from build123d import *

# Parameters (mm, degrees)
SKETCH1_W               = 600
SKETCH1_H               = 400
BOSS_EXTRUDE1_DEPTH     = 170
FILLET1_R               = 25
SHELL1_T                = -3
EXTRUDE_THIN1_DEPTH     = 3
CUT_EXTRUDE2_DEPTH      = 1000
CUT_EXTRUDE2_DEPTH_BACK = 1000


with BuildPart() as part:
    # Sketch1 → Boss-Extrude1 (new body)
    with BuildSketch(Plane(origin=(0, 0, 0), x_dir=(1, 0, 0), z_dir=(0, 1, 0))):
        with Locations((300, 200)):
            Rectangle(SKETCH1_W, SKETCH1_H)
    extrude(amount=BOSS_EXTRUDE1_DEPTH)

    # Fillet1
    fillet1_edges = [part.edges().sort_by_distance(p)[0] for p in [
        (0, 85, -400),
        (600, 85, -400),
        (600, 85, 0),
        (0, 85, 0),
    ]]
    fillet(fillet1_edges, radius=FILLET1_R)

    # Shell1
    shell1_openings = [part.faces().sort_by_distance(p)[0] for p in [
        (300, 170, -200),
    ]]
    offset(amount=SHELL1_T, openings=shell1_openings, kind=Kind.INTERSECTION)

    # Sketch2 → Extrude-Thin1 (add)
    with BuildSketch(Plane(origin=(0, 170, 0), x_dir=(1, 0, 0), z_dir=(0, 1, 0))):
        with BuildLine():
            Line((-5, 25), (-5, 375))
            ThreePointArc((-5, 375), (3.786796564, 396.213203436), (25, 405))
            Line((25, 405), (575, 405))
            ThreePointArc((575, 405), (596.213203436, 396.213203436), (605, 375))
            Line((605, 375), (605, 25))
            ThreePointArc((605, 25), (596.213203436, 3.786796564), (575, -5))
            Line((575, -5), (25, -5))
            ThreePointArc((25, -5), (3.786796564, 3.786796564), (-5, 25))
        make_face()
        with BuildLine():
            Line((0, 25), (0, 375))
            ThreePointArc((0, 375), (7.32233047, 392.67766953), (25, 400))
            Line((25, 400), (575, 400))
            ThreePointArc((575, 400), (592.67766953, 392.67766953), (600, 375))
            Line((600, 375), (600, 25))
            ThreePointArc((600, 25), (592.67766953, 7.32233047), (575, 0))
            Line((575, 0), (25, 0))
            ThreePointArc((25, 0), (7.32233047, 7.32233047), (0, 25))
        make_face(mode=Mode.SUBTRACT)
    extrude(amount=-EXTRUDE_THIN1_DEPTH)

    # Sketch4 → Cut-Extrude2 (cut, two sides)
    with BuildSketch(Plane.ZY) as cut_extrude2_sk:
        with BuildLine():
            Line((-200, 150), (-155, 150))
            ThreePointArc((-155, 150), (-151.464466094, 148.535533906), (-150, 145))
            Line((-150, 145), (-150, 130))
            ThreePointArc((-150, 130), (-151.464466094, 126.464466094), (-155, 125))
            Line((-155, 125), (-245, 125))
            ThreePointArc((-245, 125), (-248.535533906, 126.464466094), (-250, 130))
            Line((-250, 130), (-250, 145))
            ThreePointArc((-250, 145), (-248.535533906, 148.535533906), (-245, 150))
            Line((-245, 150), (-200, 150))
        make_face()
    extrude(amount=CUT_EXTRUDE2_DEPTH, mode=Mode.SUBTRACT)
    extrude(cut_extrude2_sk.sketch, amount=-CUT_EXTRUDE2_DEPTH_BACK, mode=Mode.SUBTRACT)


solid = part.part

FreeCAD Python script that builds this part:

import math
import FreeCAD as App
import Part
import Sketcher

V = App.Vector
Q = App.Units.Quantity


def edges_at(feature, points):
    """Names of the edges that pass closest to the given points."""
    edges = feature.Shape.Edges
    near = lambda p: min(range(len(edges)), key=lambda i: edges[i].distToShape(Part.Vertex(*p))[0])
    return sorted({f"Edge{near(p) + 1}" for p in points})


def faces_at(feature, points):
    """Names of the faces that lie closest to the given points."""
    faces = feature.Shape.Faces
    near = lambda p: min(range(len(faces)), key=lambda i: faces[i].distToShape(Part.Vertex(*p))[0])
    return sorted({f"Face{near(p) + 1}" for p in points})

doc = App.newDocument("Part")
params = doc.addObject("Spreadsheet::Sheet", "Params")
for row, (alias, value) in enumerate([
    ("sketch1_width", "600 mm"),
    ("sketch1_height", "400 mm"),
    ("pad1_length", "170 mm"),
    ("fillet_radius", "25 mm"),
    ("thickness_wall", "3 mm"),
    ("sketch2_radius", "30 mm"),
    ("sketch2_radius2", "25 mm"),
    ("sketch2_width", "550 mm"),
    ("sketch2_height", "350 mm"),
    ("pad2_length", "3 mm"),
    ("sketch3_radius", "5 mm"),
    ("sketch3_width", "15 mm"),
    ("sketch3_height", "90 mm"),
], start=1):
    params.set(f"A{row}", alias)
    params.set(f"B{row}", "=" + value)
    params.setAlias(f"B{row}", alias)

body = doc.addObject("PartDesign::Body", "Body")

sketch1 = body.newObject("Sketcher::SketchObject", "Sketch")
sketch1.AttachmentSupport = (doc.getObject("XZ_Plane"), [""])
sketch1.MapMode = "FlatFace"
sketch1.addGeometry([
    Part.LineSegment(V(0, -400, 0), V(0, 0, 0)),
    Part.LineSegment(V(0, 0, 0), V(600, 0, 0)),
    Part.LineSegment(V(600, 0, 0), V(600, -400, 0)),
    Part.LineSegment(V(600, -400, 0), V(0, -400, 0)),
], False)
sketch1.addConstraint([
    Sketcher.Constraint("Coincident", 0, 2, 1, 1),
    Sketcher.Constraint("Coincident", 1, 2, 2, 1),
    Sketcher.Constraint("Coincident", 2, 2, 3, 1),
    Sketcher.Constraint("Coincident", 3, 2, 0, 1),
    Sketcher.Constraint("Vertical", 0),
    Sketcher.Constraint("Horizontal", 1),
    Sketcher.Constraint("Vertical", 2),
    Sketcher.Constraint("Horizontal", 3),
    Sketcher.Constraint("Coincident", 0, 2, -1, 1),
    Sketcher.Constraint("DistanceX", 1, 1, 1, 2, Q("600 mm")),
    Sketcher.Constraint("DistanceY", 0, 1, 0, 2, Q("400 mm")),
])
sketch1.setExpression("Constraints[9]", "Params.sketch1_width")
sketch1.setExpression("Constraints[10]", "Params.sketch1_height")
pad1 = body.newObject("PartDesign::Pad", "Pad")
pad1.Profile = sketch1
pad1.setExpression("Length", "Params.pad1_length")
pad1.Reversed = True
doc.recompute()

fillet = body.newObject("PartDesign::Fillet", "Fillet")
fillet.Base = (pad1, edges_at(pad1, [
    (0, 85, -400),
    (600, 85, -400),
    (600, 85, 0),
    (0, 85, 0),
]))
fillet.setExpression("Radius", "Params.fillet_radius")
doc.recompute()

thickness = body.newObject("PartDesign::Thickness", "Thickness")
thickness.Base = (fillet, faces_at(fillet, [(300, 170, -200)]))
thickness.setExpression("Value", "Params.thickness_wall")
thickness.Reversed = True
thickness.Join = "Intersection"

sketch2 = body.newObject("Sketcher::SketchObject", "Sketch001")
sketch2.AttachmentSupport = (doc.getObject("XZ_Plane"), [""])
sketch2.MapMode = "FlatFace"
sketch2.AttachmentOffset = App.Placement(V(0, 0, -170), App.Rotation())
sketch2.addGeometry([
    Part.LineSegment(V(-5, -375, 0), V(-5, -25, 0)),
    Part.ArcOfCircle(Part.Circle(V(25, -25, 0), V(0, 0, 1), 30), math.radians(90), math.radians(180)),
    Part.LineSegment(V(25, 5, 0), V(575, 5, 0)),
    Part.ArcOfCircle(Part.Circle(V(575, -25, 0), V(0, 0, 1), 30), math.radians(0), math.radians(90)),
    Part.LineSegment(V(605, -25, 0), V(605, -375, 0)),
    Part.ArcOfCircle(Part.Circle(V(575, -375, 0), V(0, 0, 1), 30), math.radians(-90), math.radians(0)),
    Part.LineSegment(V(575, -405, 0), V(25, -405, 0)),
    Part.ArcOfCircle(Part.Circle(V(25, -375, 0), V(0, 0, 1), 30), math.radians(180), math.radians(270)),
    Part.LineSegment(V(0, -25, 0), V(0, -375, 0)),
    Part.ArcOfCircle(Part.Circle(V(25, -375, 0), V(0, 0, 1), 25), math.radians(180), math.radians(270)),
    Part.LineSegment(V(25, -400, 0), V(575, -400, 0)),
    Part.ArcOfCircle(Part.Circle(V(575, -375, 0), V(0, 0, 1), 25), math.radians(-90), math.radians(0)),
    Part.LineSegment(V(600, -375, 0), V(600, -25, 0)),
    Part.ArcOfCircle(Part.Circle(V(575, -25, 0), V(0, 0, 1), 25), math.radians(0), math.radians(90)),
    Part.LineSegment(V(575, 0, 0), V(25, 0, 0)),
    Part.ArcOfCircle(Part.Circle(V(25, -25, 0), V(0, 0, 1), 25), math.radians(90), math.radians(180)),
], False)
sketch2.addConstraint([
    Sketcher.Constraint("Tangent", 0, 2, 1, 2),
    Sketcher.Constraint("Tangent", 1, 1, 2, 1),
    Sketcher.Constraint("Tangent", 2, 2, 3, 2),
    Sketcher.Constraint("Tangent", 3, 1, 4, 1),
    Sketcher.Constraint("Tangent", 4, 2, 5, 2),
    Sketcher.Constraint("Tangent", 5, 1, 6, 1),
    Sketcher.Constraint("Tangent", 6, 2, 7, 2),
    Sketcher.Constraint("Tangent", 7, 1, 0, 1),
    Sketcher.Constraint("Tangent", 8, 2, 9, 1),
    Sketcher.Constraint("Tangent", 9, 2, 10, 1),
    Sketcher.Constraint("Tangent", 10, 2, 11, 1),
    Sketcher.Constraint("Tangent", 11, 2, 12, 1),
    Sketcher.Constraint("Tangent", 12, 2, 13, 1),
    Sketcher.Constraint("Tangent", 13, 2, 14, 1),
    Sketcher.Constraint("Tangent", 14, 2, 15, 1),
    Sketcher.Constraint("Tangent", 15, 2, 8, 1),
    Sketcher.Constraint("Vertical", 0),
    Sketcher.Constraint("Horizontal", 2),
    Sketcher.Constraint("Vertical", 4),
    Sketcher.Constraint("Horizontal", 6),
    Sketcher.Constraint("Vertical", 8),
    Sketcher.Constraint("Horizontal", 10),
    Sketcher.Constraint("Vertical", 12),
    Sketcher.Constraint("Horizontal", 14),
    Sketcher.Constraint("Coincident", 9, 3, 7, 3),
    Sketcher.Constraint("Coincident", 11, 3, 5, 3),
    Sketcher.Constraint("Coincident", 13, 3, 3, 3),
    Sketcher.Constraint("Equal", 1, 3),
    Sketcher.Constraint("Equal", 3, 5),
    Sketcher.Constraint("Equal", 5, 7),
    Sketcher.Constraint("Equal", 13, 15),
    Sketcher.Constraint("PointOnObject", 8, 2, -2),
    Sketcher.Constraint("PointOnObject", 13, 2, -1),
    Sketcher.Constraint("Radius", 1, Q("30 mm")),
    Sketcher.Constraint("Radius", 9, Q("25 mm")),
    Sketcher.Constraint("DistanceX", 2, 1, 2, 2, Q("550 mm")),
    Sketcher.Constraint("DistanceY", 0, 1, 0, 2, Q("350 mm")),
])
sketch2.setExpression("Constraints[33]", "Params.sketch2_radius")
sketch2.setExpression("Constraints[34]", "Params.sketch2_radius2")
sketch2.setExpression("Constraints[35]", "Params.sketch2_width")
sketch2.setExpression("Constraints[36]", "Params.sketch2_height")
pad2 = body.newObject("PartDesign::Pad", "Pad001")
pad2.Profile = sketch2
pad2.setExpression("Length", "Params.pad2_length")

sketch3 = body.newObject("Sketcher::SketchObject", "Sketch002")
sketch3.AttachmentSupport = (doc.getObject("YZ_Plane"), [""])
sketch3.MapMode = "FlatFace"
sketch3.addGeometry([
    Part.ArcOfCircle(Part.Circle(V(145, -155, 0), V(0, 0, 1), 5), math.radians(0), math.radians(90)),
    Part.LineSegment(V(150, -155, 0), V(150, -245, 0)),
    Part.ArcOfCircle(Part.Circle(V(145, -245, 0), V(0, 0, 1), 5), math.radians(-90), math.radians(0)),
    Part.LineSegment(V(145, -250, 0), V(130, -250, 0)),
    Part.ArcOfCircle(Part.Circle(V(130, -245, 0), V(0, 0, 1), 5), math.radians(180), math.radians(270)),
    Part.LineSegment(V(125, -245, 0), V(125, -155, 0)),
    Part.ArcOfCircle(Part.Circle(V(130, -155, 0), V(0, 0, 1), 5), math.radians(90), math.radians(180)),
    Part.LineSegment(V(130, -150, 0), V(145, -150, 0)),
], False)
sketch3.addConstraint([
    Sketcher.Constraint("Tangent", 0, 1, 1, 1),
    Sketcher.Constraint("Tangent", 1, 2, 2, 2),
    Sketcher.Constraint("Tangent", 2, 1, 3, 1),
    Sketcher.Constraint("Tangent", 3, 2, 4, 2),
    Sketcher.Constraint("Tangent", 4, 1, 5, 1),
    Sketcher.Constraint("Tangent", 5, 2, 6, 2),
    Sketcher.Constraint("Tangent", 6, 1, 7, 1),
    Sketcher.Constraint("Tangent", 7, 2, 0, 2),
    Sketcher.Constraint("Vertical", 1),
    Sketcher.Constraint("Horizontal", 3),
    Sketcher.Constraint("Vertical", 5),
    Sketcher.Constraint("Horizontal", 7),
    Sketcher.Constraint("Equal", 0, 2),
    Sketcher.Constraint("Equal", 2, 4),
    Sketcher.Constraint("Equal", 4, 6),
    Sketcher.Constraint("Radius", 0, Q("5 mm")),
    Sketcher.Constraint("DistanceX", 3, 2, 3, 1, Q("15 mm")),
    Sketcher.Constraint("DistanceY", 1, 2, 1, 1, Q("90 mm")),
    Sketcher.Constraint("DistanceX", -1, 1, 0, 3, Q("145 mm")),
    Sketcher.Constraint("DistanceY", 0, 3, -1, 1, Q("155 mm")),
])
sketch3.setExpression("Constraints[15]", "Params.sketch3_radius")
sketch3.setExpression("Constraints[16]", "Params.sketch3_width")
sketch3.setExpression("Constraints[17]", "Params.sketch3_height")
pocket1 = body.newObject("PartDesign::Pocket", "Pocket")
pocket1.Profile = sketch3
pocket1.Type = "ThroughAll"
pocket1.Midplane = True

doc.recompute()
